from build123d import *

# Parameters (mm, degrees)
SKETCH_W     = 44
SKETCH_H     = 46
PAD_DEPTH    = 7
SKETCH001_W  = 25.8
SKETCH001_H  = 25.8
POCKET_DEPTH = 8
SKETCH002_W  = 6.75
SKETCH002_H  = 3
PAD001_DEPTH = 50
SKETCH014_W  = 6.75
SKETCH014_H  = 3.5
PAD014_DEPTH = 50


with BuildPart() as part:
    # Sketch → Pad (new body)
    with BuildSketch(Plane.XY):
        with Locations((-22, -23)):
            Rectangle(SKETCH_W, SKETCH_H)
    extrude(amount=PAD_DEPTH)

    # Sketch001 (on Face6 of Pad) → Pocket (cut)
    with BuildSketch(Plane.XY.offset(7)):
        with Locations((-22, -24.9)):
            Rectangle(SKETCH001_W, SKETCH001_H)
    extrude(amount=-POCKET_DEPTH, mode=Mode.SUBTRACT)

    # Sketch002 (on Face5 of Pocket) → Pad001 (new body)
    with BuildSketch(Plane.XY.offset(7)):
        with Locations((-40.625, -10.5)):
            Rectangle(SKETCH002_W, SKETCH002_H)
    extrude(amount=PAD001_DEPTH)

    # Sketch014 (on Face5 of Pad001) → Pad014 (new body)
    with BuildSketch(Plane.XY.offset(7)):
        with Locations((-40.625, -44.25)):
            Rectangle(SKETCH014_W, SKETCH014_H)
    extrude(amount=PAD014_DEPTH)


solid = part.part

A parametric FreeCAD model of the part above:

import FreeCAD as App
import Part
import Sketcher

V = App.Vector


def add_polygon(sketch, points):
    """Adds a closed chain of lines whose ends are joined by coincident constraints."""
    first, n = sketch.GeometryCount, len(points)
    for a, b in zip(points, points[1:] + points[:1]):
        sketch.addGeometry(Part.LineSegment(App.Vector(*a, 0), App.Vector(*b, 0)), False)
    for i in range(n):
        sketch.addConstraint(Sketcher.Constraint("Coincident", first + i, 2, first + (i + 1) % n, 1))

doc = App.newDocument("Part")
body = doc.addObject("PartDesign::Body", "Body")

# Sketch on XY plane
sketch1 = doc.addObject("Sketcher::SketchObject", "Sketch")
body.addObject(sketch1)
sketch1.AttachmentSupport = (doc.XY_Plane, [""])
sketch1.MapMode = "FlatFace"
add_polygon(sketch1, [(-44, 0), (-44, -46), (0, -46), (0, 0)])  # lines 0-3
sketch1.addConstraint(Sketcher.Constraint("Vertical", 0))
sketch1.addConstraint(Sketcher.Constraint("Horizontal", 1))
sketch1.addConstraint(Sketcher.Constraint("Vertical", 2))
sketch1.addConstraint(Sketcher.Constraint("Horizontal", 3))
sketch1.addConstraint(Sketcher.Constraint("Coincident", 2, 2, -1, 1))
sketch1.addConstraint(Sketcher.Constraint("DistanceX", 1, 1, 1, 2, 44.0))
sketch1.addConstraint(Sketcher.Constraint("DistanceY", 0, 2, 0, 1, 46.0))
pad1 = doc.addObject("PartDesign::Pad", "Pad")
body.addObject(pad1)
pad1.Profile = sketch1
pad1.Length = 7

# Sketch on XY plane
sketch2 = doc.addObject("Sketcher::SketchObject", "Sketch001")
body.addObject(sketch2)
sketch2.AttachmentSupport = (doc.XY_Plane, [""])
sketch2.MapMode = "FlatFace"
sketch2.AttachmentOffset = App.Placement(V(0, 0, 7), App.Rotation())
add_polygon(sketch2, [(-34.9, -12), (-34.9, -37.8), (-9.1, -37.8), (-9.1, -12)])  # lines 0-3
sketch2.addConstraint(Sketcher.Constraint("Vertical", 0))
sketch2.addConstraint(Sketcher.Constraint("Horizontal", 1))
sketch2.addConstraint(Sketcher.Constraint("Vertical", 2))
sketch2.addConstraint(Sketcher.Constraint("Horizontal", 3))
sketch2.addConstraint(Sketcher.Constraint("Equal", 3, 0))
sketch2.addConstraint(Sketcher.Constraint("DistanceX", 1, 1, 1, 2, 25.8))
sketch2.addConstraint(Sketcher.Constraint("DistanceY", 2, 2, -1, 1, 12.0))
sketch2.addConstraint(Sketcher.Constraint("DistanceX", 0, 2, -1, 1, 34.9))
pocket1 = doc.addObject("PartDesign::Pocket", "Pocket")
body.addObject(pocket1)
pocket1.Profile = sketch2
pocket1.Length = 8

# Sketch on XY plane
sketch3 = doc.addObject("Sketcher::SketchObject", "Sketch002")
body.addObject(sketch3)
sketch3.AttachmentSupport = (doc.XY_Plane, [""])
sketch3.MapMode = "FlatFace"
sketch3.AttachmentOffset = App.Placement(V(0, 0, 7), App.Rotation())
add_polygon(sketch3, [(-44, -9), (-44, -12), (-37.25, -12), (-37.25, -9)])  # lines 0-3
sketch3.addConstraint(Sketcher.Constraint("Vertical", 0))
sketch3.addConstraint(Sketcher.Constraint("Horizontal", 1))
sketch3.addConstraint(Sketcher.Constraint("Vertical", 2))
sketch3.addConstraint(Sketcher.Constraint("Horizontal", 3))
sketch3.addConstraint(Sketcher.Constraint("DistanceY", 0, 2, 0, 1, 3.0))
sketch3.addConstraint(Sketcher.Constraint("DistanceX", 0, 2, -1, 1, 44.0))
sketch3.addConstraint(Sketcher.Constraint("DistanceY", 0, 2, -1, 1, 12.0))
sketch3.addConstraint(Sketcher.Constraint("DistanceX", 1, 1, 1, 2, 6.75))
pad2 = doc.addObject("PartDesign::Pad", "Pad001")
body.addObject(pad2)
pad2.Profile = sketch3
pad2.Length = 50

# Sketch on XY plane
sketch4 = doc.addObject("Sketcher::SketchObject", "Sketch003")
body.addObject(sketch4)
sketch4.AttachmentSupport = (doc.XY_Plane, [""])
sketch4.MapMode = "FlatFace"
sketch4.AttachmentOffset = App.Placement(V(0, 0, 7), App.Rotation())
add_polygon(sketch4, [(-44, -42.5), (-44, -46), (-37.25, -46), (-37.25, -42.5)])  # lines 0-3
sketch4.addConstraint(Sketcher.Constraint("Vertical", 0))
sketch4.addConstraint(Sketcher.Constraint("Horizontal", 1))
sketch4.addConstraint(Sketcher.Constraint("Vertical", 2))
sketch4.addConstraint(Sketcher.Constraint("Horizontal", 3))
sketch4.addConstraint(Sketcher.Constraint("DistanceY", 0, 2, 0, 1, 3.5))
sketch4.addConstraint(Sketcher.Constraint("DistanceX", 0, 2, -1, 1, 44.0))
sketch4.addConstraint(Sketcher.Constraint("DistanceY", 0, 2, -1, 1, 46.0))
sketch4.addConstraint(Sketcher.Constraint("DistanceX", 1, 1, 1, 2, 6.75))
pad3 = doc.addObject("PartDesign::Pad", "Pad002")
body.addObject(pad3)
pad3.Profile = sketch4
pad3.Length = 50

doc.recompute()
